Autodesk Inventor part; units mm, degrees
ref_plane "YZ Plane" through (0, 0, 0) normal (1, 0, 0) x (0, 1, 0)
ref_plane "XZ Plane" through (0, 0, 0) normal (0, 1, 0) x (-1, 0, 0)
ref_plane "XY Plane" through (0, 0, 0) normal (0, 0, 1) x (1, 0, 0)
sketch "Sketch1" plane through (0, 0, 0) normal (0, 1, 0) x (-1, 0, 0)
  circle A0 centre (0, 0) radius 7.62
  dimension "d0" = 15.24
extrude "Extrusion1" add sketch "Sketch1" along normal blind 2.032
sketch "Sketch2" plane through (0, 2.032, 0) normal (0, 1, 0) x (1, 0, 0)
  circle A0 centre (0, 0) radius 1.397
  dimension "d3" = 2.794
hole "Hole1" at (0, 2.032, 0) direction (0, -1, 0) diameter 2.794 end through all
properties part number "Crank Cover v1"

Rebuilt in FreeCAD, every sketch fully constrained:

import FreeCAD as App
import Part
import Sketcher
Q = App.Units.Quantity

doc = App.newDocument("Part")
body = doc.addObject("PartDesign::Body", "Body")

sketch1 = doc.addObject("Sketcher::SketchObject", "Sketch")
body.addObject(sketch1)
sketch1.AttachmentSupport = (doc.XZ_Plane, [""])
sketch1.MapMode = "FlatFace"
sketch1.addGeometry(Part.Circle(App.Vector(0, 0, 0), App.Vector(0, 0, 1), 8), False)
sketch1.addConstraint([
    Sketcher.Constraint("Coincident", 0, 3, -1, 1),
    Sketcher.Constraint("Diameter", 0, Q("0.6 in")),
])
pad1 = doc.addObject("PartDesign::Pad", "Pad")
body.addObject(pad1)
pad1.Profile = sketch1
pad1.Length = Q("0.08 in")
pad1.Reversed = True

sketch2 = doc.addObject("Sketcher::SketchObject", "Sketch001")
body.addObject(sketch2)
sketch2.AttachmentSupport = (doc.XZ_Plane, [""])
sketch2.MapMode = "FlatFace"
sketch2.AttachmentOffset = App.Placement(App.Vector(0, 0, -0.08 * 25.4), App.Rotation())
sketch2.addGeometry(Part.Circle(App.Vector(0, 0, 0), App.Vector(0, 0, 1), 1.4), False)
sketch2.addConstraint([
    Sketcher.Constraint("Coincident", 0, 3, -1, 1),
    Sketcher.Constraint("Diameter", 0, Q("0.11 in")),
])
doc.recompute()
hole = doc.addObject("PartDesign::Hole", "Hole")
body.addObject(hole)
hole.Profile = sketch2
hole.ThreadType = "None"
hole.Diameter = Q("0.11 in")
hole.DepthType = "ThroughAll"
hole.Reversed = True

doc.recompute()
